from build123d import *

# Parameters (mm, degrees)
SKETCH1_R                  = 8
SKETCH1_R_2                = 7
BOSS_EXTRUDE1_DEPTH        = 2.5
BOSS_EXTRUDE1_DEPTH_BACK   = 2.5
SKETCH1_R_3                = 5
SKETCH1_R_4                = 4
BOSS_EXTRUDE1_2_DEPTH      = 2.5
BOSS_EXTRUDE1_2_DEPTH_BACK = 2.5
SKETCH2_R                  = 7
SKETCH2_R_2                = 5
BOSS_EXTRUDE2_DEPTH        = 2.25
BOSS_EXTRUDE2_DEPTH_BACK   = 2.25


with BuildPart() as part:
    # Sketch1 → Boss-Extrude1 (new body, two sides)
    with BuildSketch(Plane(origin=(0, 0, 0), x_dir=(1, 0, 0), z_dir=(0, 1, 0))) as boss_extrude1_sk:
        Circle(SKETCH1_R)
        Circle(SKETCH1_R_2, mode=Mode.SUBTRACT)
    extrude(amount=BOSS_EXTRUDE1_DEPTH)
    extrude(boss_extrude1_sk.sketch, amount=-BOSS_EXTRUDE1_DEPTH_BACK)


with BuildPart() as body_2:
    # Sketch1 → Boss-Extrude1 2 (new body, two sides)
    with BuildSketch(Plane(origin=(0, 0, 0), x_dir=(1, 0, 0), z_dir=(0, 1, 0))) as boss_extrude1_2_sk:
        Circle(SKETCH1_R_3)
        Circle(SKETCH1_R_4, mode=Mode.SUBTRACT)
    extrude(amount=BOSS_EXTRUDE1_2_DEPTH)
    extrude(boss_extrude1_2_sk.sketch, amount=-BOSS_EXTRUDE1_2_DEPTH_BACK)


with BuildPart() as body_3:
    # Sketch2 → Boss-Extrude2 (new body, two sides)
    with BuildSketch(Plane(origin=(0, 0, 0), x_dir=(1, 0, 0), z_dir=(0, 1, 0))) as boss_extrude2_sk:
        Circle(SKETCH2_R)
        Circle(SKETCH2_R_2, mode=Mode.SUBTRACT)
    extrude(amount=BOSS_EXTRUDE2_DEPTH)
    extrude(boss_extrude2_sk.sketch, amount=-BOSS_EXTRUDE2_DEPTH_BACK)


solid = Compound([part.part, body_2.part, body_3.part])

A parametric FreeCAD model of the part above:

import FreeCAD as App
import Part
import Sketcher
from FreeCAD import Vector

doc = App.newDocument("Part")
body = doc.addObject("PartDesign::Body", "Body")

# Sketch on XZ plane
sketch1 = doc.addObject("Sketcher::SketchObject", "Sketch")
body.addObject(sketch1)
sketch1.AttachmentSupport = (doc.XZ_Plane, [""])
sketch1.MapMode = "FlatFace"
sketch1.addGeometry([
    Part.Circle(Vector(0, 0, 0), Vector(0, 0, 1), 8),
    Part.Circle(Vector(0, 0, 0), Vector(0, 0, 1), 7),
], False)
sketch1.addConstraint([
    Sketcher.Constraint("Coincident", 0, 3, -1, 1),
    Sketcher.Constraint("Coincident", 1, 3, -1, 1),
    Sketcher.Constraint("Diameter", 0, 16.0),
    Sketcher.Constraint("Diameter", 1, 14.0),
])
pad1 = doc.addObject("PartDesign::Pad", "Pad")
body.addObject(pad1)
pad1.Profile = sketch1
pad1.Type = "TwoLengths"
pad1.Length = 2.5
pad1.Length2 = 2.5
pad1.Reversed = True
body2 = doc.addObject("PartDesign::Body", "Body001")

# Sketch on XZ plane
sketch2 = doc.addObject("Sketcher::SketchObject", "Sketch001")
body2.addObject(sketch2)
sketch2.AttachmentSupport = (doc.getObject("XZ_Plane001"), [""])
sketch2.MapMode = "FlatFace"
sketch2.addGeometry([
    Part.Circle(Vector(0, 0, 0), Vector(0, 0, 1), 5),
    Part.Circle(Vector(0, 0, 0), Vector(0, 0, 1), 4),
], False)
sketch2.addConstraint([
    Sketcher.Constraint("Coincident", 0, 3, -1, 1),
    Sketcher.Constraint("Coincident", 1, 3, -1, 1),
    Sketcher.Constraint("Diameter", 0, 10.0),
    Sketcher.Constraint("Diameter", 1, 8.0),
])
pad2 = doc.addObject("PartDesign::Pad", "Pad001")
body2.addObject(pad2)
pad2.Profile = sketch2
pad2.Type = "TwoLengths"
pad2.Length = 2.5
pad2.Length2 = 2.5
pad2.Reversed = True
body3 = doc.addObject("PartDesign::Body", "Body002")

# Sketch on XZ plane
sketch3 = doc.addObject("Sketcher::SketchObject", "Sketch002")
body3.addObject(sketch3)
sketch3.AttachmentSupport = (doc.getObject("XZ_Plane002"), [""])
sketch3.MapMode = "FlatFace"
sketch3.addGeometry([
    Part.Circle(Vector(0, 0, 0), Vector(0, 0, 1), 7),
    Part.Circle(Vector(0, 0, 0), Vector(0, 0, 1), 5),
], False)
sketch3.addConstraint([
    Sketcher.Constraint("Coincident", 0, 3, -1, 1),
    Sketcher.Constraint("Coincident", 1, 3, -1, 1),
    Sketcher.Constraint("Diameter", 0, 14.0),
    Sketcher.Constraint("Diameter", 1, 10.0),
])
pad3 = doc.addObject("PartDesign::Pad", "Pad002")
body3.addObject(pad3)
pad3.Profile = sketch3
pad3.Type = "TwoLengths"
pad3.Length = 2.25
pad3.Length2 = 2.25
pad3.Reversed = True

doc.recompute()
